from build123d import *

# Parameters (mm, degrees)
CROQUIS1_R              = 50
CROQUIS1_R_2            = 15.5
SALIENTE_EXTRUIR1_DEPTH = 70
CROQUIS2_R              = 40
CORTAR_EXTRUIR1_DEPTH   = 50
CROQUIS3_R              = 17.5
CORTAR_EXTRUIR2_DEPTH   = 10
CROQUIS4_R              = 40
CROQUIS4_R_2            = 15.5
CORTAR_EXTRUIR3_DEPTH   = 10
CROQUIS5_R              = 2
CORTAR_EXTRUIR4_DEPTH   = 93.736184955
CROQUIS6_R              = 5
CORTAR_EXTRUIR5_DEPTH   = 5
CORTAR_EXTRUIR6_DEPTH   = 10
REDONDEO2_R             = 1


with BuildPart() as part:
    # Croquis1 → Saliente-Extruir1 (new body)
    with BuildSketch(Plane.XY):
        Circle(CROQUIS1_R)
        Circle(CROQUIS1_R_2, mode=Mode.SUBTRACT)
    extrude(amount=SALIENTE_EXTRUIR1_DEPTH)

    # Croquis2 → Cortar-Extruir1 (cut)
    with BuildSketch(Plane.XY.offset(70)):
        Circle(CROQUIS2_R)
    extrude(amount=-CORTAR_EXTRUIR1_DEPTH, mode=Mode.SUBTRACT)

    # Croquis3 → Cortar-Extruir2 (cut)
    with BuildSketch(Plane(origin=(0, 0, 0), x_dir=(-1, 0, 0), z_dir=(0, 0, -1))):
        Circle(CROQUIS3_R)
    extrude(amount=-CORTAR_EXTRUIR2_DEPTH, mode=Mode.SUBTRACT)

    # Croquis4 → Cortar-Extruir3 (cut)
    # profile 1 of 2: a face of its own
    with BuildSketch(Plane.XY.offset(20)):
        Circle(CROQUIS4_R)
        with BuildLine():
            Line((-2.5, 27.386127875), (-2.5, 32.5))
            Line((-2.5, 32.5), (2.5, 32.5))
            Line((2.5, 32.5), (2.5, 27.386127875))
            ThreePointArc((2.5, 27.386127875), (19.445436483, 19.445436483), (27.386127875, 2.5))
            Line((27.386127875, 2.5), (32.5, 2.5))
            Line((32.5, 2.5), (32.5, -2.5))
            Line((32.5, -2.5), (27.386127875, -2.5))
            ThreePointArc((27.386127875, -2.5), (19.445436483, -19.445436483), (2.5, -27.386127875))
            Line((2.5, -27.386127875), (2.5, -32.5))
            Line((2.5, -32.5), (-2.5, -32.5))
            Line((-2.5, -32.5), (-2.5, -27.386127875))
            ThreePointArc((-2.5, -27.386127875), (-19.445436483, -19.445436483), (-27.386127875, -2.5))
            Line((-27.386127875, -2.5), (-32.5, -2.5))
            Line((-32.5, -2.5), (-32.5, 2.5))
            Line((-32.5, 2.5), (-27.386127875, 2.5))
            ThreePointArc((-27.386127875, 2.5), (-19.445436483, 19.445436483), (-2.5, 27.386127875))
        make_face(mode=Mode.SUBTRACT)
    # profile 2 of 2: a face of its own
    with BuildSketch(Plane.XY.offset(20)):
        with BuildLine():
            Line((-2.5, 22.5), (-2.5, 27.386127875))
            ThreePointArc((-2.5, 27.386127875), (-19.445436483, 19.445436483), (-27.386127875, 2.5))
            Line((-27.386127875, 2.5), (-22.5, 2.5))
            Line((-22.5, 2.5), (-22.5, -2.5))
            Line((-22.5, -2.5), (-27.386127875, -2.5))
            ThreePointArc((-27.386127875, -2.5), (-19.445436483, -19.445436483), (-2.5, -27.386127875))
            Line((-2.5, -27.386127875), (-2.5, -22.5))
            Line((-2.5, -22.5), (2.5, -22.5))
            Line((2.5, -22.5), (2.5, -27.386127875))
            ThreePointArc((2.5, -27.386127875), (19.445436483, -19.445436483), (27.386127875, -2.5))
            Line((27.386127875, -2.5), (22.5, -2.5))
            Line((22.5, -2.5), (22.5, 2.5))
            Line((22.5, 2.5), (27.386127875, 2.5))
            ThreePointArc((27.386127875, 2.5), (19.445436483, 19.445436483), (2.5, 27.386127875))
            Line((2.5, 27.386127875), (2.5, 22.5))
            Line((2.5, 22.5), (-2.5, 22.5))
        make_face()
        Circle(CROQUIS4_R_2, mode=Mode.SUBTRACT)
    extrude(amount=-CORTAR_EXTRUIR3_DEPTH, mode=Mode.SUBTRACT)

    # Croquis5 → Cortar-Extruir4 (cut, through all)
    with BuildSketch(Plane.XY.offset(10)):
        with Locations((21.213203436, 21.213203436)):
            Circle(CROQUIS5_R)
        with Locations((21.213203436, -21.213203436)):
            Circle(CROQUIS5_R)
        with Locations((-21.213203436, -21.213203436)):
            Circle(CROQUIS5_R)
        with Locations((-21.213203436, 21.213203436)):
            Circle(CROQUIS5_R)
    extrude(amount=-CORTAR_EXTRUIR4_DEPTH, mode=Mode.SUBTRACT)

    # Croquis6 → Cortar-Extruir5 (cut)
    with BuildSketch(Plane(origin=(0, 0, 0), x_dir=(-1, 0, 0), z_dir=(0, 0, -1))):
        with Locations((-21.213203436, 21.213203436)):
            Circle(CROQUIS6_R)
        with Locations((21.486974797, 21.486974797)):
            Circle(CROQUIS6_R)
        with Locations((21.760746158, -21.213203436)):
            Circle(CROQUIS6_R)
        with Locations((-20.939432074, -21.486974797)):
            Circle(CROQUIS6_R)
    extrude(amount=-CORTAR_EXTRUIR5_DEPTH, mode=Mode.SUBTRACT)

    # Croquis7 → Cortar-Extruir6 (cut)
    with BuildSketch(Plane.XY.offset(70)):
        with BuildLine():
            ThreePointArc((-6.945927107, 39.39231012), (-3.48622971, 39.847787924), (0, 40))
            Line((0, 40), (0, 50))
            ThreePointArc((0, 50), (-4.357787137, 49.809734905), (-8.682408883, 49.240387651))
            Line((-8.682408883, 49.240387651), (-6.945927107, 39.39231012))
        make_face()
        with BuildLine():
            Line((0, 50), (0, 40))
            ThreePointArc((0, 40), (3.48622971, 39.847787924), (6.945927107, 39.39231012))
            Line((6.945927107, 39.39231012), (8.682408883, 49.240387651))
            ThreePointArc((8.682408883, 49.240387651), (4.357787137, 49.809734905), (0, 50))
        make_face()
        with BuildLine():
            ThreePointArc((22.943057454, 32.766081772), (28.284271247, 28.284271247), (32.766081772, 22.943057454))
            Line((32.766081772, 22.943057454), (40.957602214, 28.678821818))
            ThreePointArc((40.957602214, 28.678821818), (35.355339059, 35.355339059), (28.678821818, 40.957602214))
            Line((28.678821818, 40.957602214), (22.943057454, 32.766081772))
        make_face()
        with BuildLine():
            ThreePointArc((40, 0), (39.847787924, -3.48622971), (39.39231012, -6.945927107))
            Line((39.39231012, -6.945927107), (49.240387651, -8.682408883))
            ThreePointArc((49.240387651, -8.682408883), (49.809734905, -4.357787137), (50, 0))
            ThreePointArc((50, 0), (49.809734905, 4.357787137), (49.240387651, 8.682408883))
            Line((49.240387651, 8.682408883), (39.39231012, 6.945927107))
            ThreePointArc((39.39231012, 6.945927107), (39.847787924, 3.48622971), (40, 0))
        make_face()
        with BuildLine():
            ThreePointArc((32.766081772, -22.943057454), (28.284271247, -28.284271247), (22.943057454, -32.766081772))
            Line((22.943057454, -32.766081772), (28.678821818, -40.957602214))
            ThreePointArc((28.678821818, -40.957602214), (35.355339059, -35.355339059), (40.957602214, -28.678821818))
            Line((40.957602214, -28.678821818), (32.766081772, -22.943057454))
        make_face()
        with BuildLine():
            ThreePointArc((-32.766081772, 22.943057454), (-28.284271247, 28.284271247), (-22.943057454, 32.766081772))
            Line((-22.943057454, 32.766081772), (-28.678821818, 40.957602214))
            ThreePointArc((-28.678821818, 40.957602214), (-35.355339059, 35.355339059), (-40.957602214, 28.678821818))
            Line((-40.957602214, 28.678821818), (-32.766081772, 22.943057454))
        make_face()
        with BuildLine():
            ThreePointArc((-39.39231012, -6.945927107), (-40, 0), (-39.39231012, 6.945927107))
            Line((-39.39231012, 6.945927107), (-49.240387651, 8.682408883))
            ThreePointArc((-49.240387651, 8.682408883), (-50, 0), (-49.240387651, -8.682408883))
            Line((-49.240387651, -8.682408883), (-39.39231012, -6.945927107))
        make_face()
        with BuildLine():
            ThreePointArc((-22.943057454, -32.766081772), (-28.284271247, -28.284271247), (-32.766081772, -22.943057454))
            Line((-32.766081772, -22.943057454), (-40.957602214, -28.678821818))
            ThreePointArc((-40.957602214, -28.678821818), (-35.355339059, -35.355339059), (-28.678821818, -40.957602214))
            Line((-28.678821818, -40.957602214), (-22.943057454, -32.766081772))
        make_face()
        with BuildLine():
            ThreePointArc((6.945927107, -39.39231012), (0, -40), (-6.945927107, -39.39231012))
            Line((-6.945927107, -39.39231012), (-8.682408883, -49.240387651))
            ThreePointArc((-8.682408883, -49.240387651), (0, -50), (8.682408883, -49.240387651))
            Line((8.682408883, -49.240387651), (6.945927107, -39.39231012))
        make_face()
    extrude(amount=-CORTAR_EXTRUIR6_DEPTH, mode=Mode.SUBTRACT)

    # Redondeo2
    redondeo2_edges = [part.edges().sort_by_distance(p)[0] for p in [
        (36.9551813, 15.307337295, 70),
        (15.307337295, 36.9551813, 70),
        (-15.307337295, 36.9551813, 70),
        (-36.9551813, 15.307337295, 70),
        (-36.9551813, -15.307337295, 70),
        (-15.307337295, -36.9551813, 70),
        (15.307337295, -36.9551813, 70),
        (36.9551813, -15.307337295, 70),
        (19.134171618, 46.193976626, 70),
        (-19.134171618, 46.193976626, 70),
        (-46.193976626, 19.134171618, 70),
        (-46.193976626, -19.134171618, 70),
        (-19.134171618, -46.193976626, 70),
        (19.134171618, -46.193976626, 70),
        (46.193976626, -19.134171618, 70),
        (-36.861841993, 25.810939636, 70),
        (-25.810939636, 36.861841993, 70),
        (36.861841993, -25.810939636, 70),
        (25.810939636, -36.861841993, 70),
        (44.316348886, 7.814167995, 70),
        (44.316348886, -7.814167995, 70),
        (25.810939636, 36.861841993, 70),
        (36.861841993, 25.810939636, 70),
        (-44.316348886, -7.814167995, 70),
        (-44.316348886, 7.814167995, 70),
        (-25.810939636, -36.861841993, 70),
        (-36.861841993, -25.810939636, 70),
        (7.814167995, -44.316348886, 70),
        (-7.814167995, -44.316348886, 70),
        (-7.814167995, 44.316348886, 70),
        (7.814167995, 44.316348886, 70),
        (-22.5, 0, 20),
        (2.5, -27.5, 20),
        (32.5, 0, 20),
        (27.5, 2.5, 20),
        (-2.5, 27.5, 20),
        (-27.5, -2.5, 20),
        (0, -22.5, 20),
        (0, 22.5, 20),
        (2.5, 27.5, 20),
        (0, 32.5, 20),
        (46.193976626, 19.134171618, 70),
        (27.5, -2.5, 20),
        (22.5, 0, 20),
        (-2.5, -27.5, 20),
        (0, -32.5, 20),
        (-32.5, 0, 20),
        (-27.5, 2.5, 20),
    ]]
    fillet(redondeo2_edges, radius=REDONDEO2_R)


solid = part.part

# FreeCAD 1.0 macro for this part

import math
import FreeCAD as App
import Part
import Sketcher

V = App.Vector
Q = App.Units.Quantity


def edges_at(feature, points):
    """Names of the edges that pass closest to the given points."""
    edges = feature.Shape.Edges
    near = lambda p: min(range(len(edges)), key=lambda i: edges[i].distToShape(Part.Vertex(*p))[0])
    return sorted({f"Edge{near(p) + 1}" for p in points})


def add_polygon(sketch, points):
    """Adds a closed chain of lines whose ends are joined by coincident constraints."""
    first, n = sketch.GeometryCount, len(points)
    for a, b in zip(points, points[1:] + points[:1]):
        sketch.addGeometry(Part.LineSegment(App.Vector(*a, 0), App.Vector(*b, 0)), False)
    for i in range(n):
        sketch.addConstraint(Sketcher.Constraint("Coincident", first + i, 2, first + (i + 1) % n, 1))

doc = App.newDocument("Part")
body = doc.addObject("PartDesign::Body", "Body")

# Sketch on XY plane
sketch1 = doc.addObject("Sketcher::SketchObject", "Sketch")
body.addObject(sketch1)
sketch1.AttachmentSupport = (doc.XY_Plane, [""])
sketch1.MapMode = "FlatFace"
sketch1.addGeometry(Part.Circle(V(0, 0, 0), V(0, 0, 1), 50), False)
sketch1.addGeometry(Part.Circle(V(0, 0, 0), V(0, 0, 1), 15.5), False)
sketch1.addConstraint(Sketcher.Constraint("Coincident", 0, 3, -1, 1))
sketch1.addConstraint(Sketcher.Constraint("Coincident", 1, 3, -1, 1))
sketch1.addConstraint(Sketcher.Constraint("Diameter", 0, Q("100 mm")))
sketch1.addConstraint(Sketcher.Constraint("Diameter", 1, Q("31 mm")))
pad1 = doc.addObject("PartDesign::Pad", "Pad")
body.addObject(pad1)
pad1.Profile = sketch1
pad1.Length = 70

# Sketch on XY plane
sketch2 = doc.addObject("Sketcher::SketchObject", "Sketch001")
body.addObject(sketch2)
sketch2.AttachmentSupport = (doc.XY_Plane, [""])
sketch2.MapMode = "FlatFace"
sketch2.AttachmentOffset = App.Placement(V(0, 0, 70), App.Rotation())
sketch2.addGeometry(Part.Circle(V(0, 0, 0), V(0, 0, 1), 40), False)
sketch2.addConstraint(Sketcher.Constraint("Coincident", 0, 3, -1, 1))
sketch2.addConstraint(Sketcher.Constraint("Diameter", 0, Q("80 mm")))
pocket1 = doc.addObject("PartDesign::Pocket", "Pocket")
body.addObject(pocket1)
pocket1.Profile = sketch2
pocket1.Length = 50

# Sketch on XY plane
sketch3 = doc.addObject("Sketcher::SketchObject", "Sketch002")
body.addObject(sketch3)
sketch3.AttachmentSupport = (doc.XY_Plane, [""])
sketch3.MapMode = "FlatFace"
sketch3.addGeometry(Part.Circle(V(0, 0, 0), V(0, 0, 1), 17.5), False)
sketch3.addConstraint(Sketcher.Constraint("Coincident", 0, 3, -1, 1))
sketch3.addConstraint(Sketcher.Constraint("Diameter", 0, Q("35 mm")))
pocket2 = doc.addObject("PartDesign::Pocket", "Pocket001")
body.addObject(pocket2)
pocket2.Profile = sketch3
pocket2.Length = 10
pocket2.Reversed = True

# Sketch on XY plane
sketch4 = doc.addObject("Sketcher::SketchObject", "Sketch003")
body.addObject(sketch4)
sketch4.AttachmentSupport = (doc.XY_Plane, [""])
sketch4.MapMode = "FlatFace"
sketch4.AttachmentOffset = App.Placement(V(0, 0, 20), App.Rotation())
sketch4.addGeometry(Part.Circle(V(0, 0, 0), V(0, 0, 1), 40), False)  # 0
add_polygon(sketch4, [(-32.5, 2.5), (-22.5, 2.5), (-22.5, -2.5), (-32.5, -2.5)])  # lines 1-4
add_polygon(sketch4, [(-2.5, -32.5), (-2.5, -22.5), (2.5, -22.5), (2.5, -32.5)])  # lines 5-8
add_polygon(sketch4, [(32.5, -2.5), (22.5, -2.5), (22.5, 2.5), (32.5, 2.5)])  # lines 9-12
add_polygon(sketch4, [(2.5, 32.5), (2.5, 22.5), (-2.5, 22.5), (-2.5, 32.5)])  # lines 13-16
sketch4.addGeometry(Part.Circle(V(0, 0, 0), V(0, 0, 1), 15.5), False)  # 17
sketch4.addConstraint(Sketcher.Constraint("Horizontal", 1))
sketch4.addConstraint(Sketcher.Constraint("Vertical", 2))
sketch4.addConstraint(Sketcher.Constraint("Horizontal", 3))
sketch4.addConstraint(Sketcher.Constraint("Vertical", 4))
sketch4.addConstraint(Sketcher.Constraint("Vertical", 5))
sketch4.addConstraint(Sketcher.Constraint("Horizontal", 6))
sketch4.addConstraint(Sketcher.Constraint("Vertical", 7))
sketch4.addConstraint(Sketcher.Constraint("Horizontal", 8))
sketch4.addConstraint(Sketcher.Constraint("Horizontal", 9))
sketch4.addConstraint(Sketcher.Constraint("Vertical", 10))
sketch4.addConstraint(Sketcher.Constraint("Horizontal", 11))
sketch4.addConstraint(Sketcher.Constraint("Vertical", 12))
sketch4.addConstraint(Sketcher.Constraint("Vertical", 13))
sketch4.addConstraint(Sketcher.Constraint("Horizontal", 14))
sketch4.addConstraint(Sketcher.Constraint("Vertical", 15))
sketch4.addConstraint(Sketcher.Constraint("Horizontal", 16))
sketch4.addConstraint(Sketcher.Constraint("Coincident", 0, 3, -1, 1))
sketch4.addConstraint(Sketcher.Constraint("Coincident", 17, 3, -1, 1))
sketch4.addConstraint(Sketcher.Constraint("Symmetric", 1, 2, 9, 2, -1, 1))
sketch4.addConstraint(Sketcher.Constraint("Symmetric", 3, 2, 11, 2, -1, 1))
sketch4.addConstraint(Sketcher.Constraint("Symmetric", 5, 2, 13, 2, -1, 1))
sketch4.addConstraint(Sketcher.Constraint("Symmetric", 7, 2, 15, 2, -1, 1))
sketch4.addConstraint(Sketcher.Constraint("Horizontal", 3, 2, 9, 2))
sketch4.addConstraint(Sketcher.Constraint("Vertical", 7, 2, 13, 2))
sketch4.addConstraint(Sketcher.Constraint("Equal", 16, 2))
sketch4.addConstraint(Sketcher.Constraint("Equal", 11, 5))
sketch4.addConstraint(Sketcher.Constraint("Diameter", 0, Q("80 mm")))
sketch4.addConstraint(Sketcher.Constraint("Diameter", 17, Q("31 mm")))
sketch4.addConstraint(Sketcher.Constraint("DistanceX", 1, 1, 1, 2, Q("10 mm")))
sketch4.addConstraint(Sketcher.Constraint("DistanceX", 6, 1, 6, 2, Q("5 mm")))
sketch4.addConstraint(Sketcher.Constraint("DistanceX", 2, 2, 5, 2, Q("20 mm")))
sketch4.addConstraint(Sketcher.Constraint("DistanceY", 5, 2, 2, 2, Q("20 mm")))
pocket3 = doc.addObject("PartDesign::Pocket", "Pocket002")
body.addObject(pocket3)
pocket3.Profile = sketch4
pocket3.Length = 10

# Sketch on XY plane
sketch5 = doc.addObject("Sketcher::SketchObject", "Sketch004")
body.addObject(sketch5)
sketch5.AttachmentSupport = (doc.XY_Plane, [""])
sketch5.MapMode = "FlatFace"
sketch5.AttachmentOffset = App.Placement(V(0, 0, 10), App.Rotation())
sketch5.addGeometry(Part.Circle(V(21.213203, 21.213203, 0), V(0, 0, 1), 2), False)
sketch5.addGeometry(Part.Circle(V(21.213203, -21.213203, 0), V(0, 0, 1), 2), False)
sketch5.addGeometry(Part.Circle(V(-21.213203, -21.213203, 0), V(0, 0, 1), 2), False)
sketch5.addGeometry(Part.Circle(V(-21.213203, 21.213203, 0), V(0, 0, 1), 2), False)
sketch5.addConstraint(Sketcher.Constraint("Equal", 0, 1))
sketch5.addConstraint(Sketcher.Constraint("Equal", 1, 2))
sketch5.addConstraint(Sketcher.Constraint("Equal", 2, 3))
sketch5.addConstraint(Sketcher.Constraint("Symmetric", 0, 3, 2, 3, -1, 1))
sketch5.addConstraint(Sketcher.Constraint("Symmetric", 1, 3, 3, 3, -1, 1))
sketch5.addConstraint(Sketcher.Constraint("Symmetric", 1, 3, 2, 3, -2))
sketch5.addConstraint(Sketcher.Constraint("Diameter", 0, Q("4 mm")))
sketch5.addConstraint(Sketcher.Constraint("DistanceX", -1, 1, 0, 3, Q("21.213203 mm")))
sketch5.addConstraint(Sketcher.Constraint("DistanceY", -1, 1, 0, 3, Q("21.213203 mm")))
pocket4 = doc.addObject("PartDesign::Pocket", "Pocket003")
body.addObject(pocket4)
pocket4.Profile = sketch5
pocket4.Type = "ThroughAll"

# Sketch on XY plane
sketch6 = doc.addObject("Sketcher::SketchObject", "Sketch005")
body.addObject(sketch6)
sketch6.AttachmentSupport = (doc.XY_Plane, [""])
sketch6.MapMode = "FlatFace"
sketch6.addGeometry(Part.Circle(V(21.213203, 21.213203, 0), V(0, 0, 1), 5), False)
sketch6.addGeometry(Part.Circle(V(-21.486975, 21.486975, 0), V(0, 0, 1), 5), False)
sketch6.addGeometry(Part.Circle(V(-21.760746, -21.213203, 0), V(0, 0, 1), 5), False)
sketch6.addGeometry(Part.Circle(V(20.939432, -21.486975, 0), V(0, 0, 1), 5), False)
sketch6.addConstraint(Sketcher.Constraint("Equal", 0, 1))
sketch6.addConstraint(Sketcher.Constraint("Equal", 1, 2))
sketch6.addConstraint(Sketcher.Constraint("Equal", 2, 3))
sketch6.addConstraint(Sketcher.Constraint("Diameter", 0, Q("10 mm")))
sketch6.addConstraint(Sketcher.Constraint("DistanceX", 1, 3, 0, 3, Q("42.700178 mm")))
sketch6.addConstraint(Sketcher.Constraint("DistanceY", 0, 3, 1, 3, Q("0.273771 mm")))
sketch6.addConstraint(Sketcher.Constraint("DistanceX", 2, 3, 1, 3, Q("0.273771 mm")))
sketch6.addConstraint(Sketcher.Constraint("DistanceY", 2, 3, 1, 3, Q("42.700178 mm")))
sketch6.addConstraint(Sketcher.Constraint("DistanceX", 2, 3, 3, 3, Q("42.700178 mm")))
sketch6.addConstraint(Sketcher.Constraint("DistanceY", 3, 3, 2, 3, Q("0.273771 mm")))
sketch6.addConstraint(Sketcher.Constraint("DistanceX", -1, 1, 0, 3, Q("21.213203 mm")))
sketch6.addConstraint(Sketcher.Constraint("DistanceY", -1, 1, 0, 3, Q("21.213203 mm")))
pocket5 = doc.addObject("PartDesign::Pocket", "Pocket004")
body.addObject(pocket5)
pocket5.Profile = sketch6
pocket5.Length = 5
pocket5.Reversed = True

# Sketch on XY plane
sketch7 = doc.addObject("Sketcher::SketchObject", "Sketch006")
body.addObject(sketch7)
sketch7.AttachmentSupport = (doc.XY_Plane, [""])
sketch7.MapMode = "FlatFace"
sketch7.AttachmentOffset = App.Placement(V(0, 0, 70), App.Rotation())
sketch7.addGeometry(Part.ArcOfCircle(Part.Circle(V(0, 0, 0), V(0, 0, 1), 40), math.radians(90), math.radians(100)), False)
sketch7.addGeometry(Part.ArcOfCircle(Part.Circle(V(0, 0, 0), V(0, 0, 1), 40), math.radians(80), math.radians(90)), False)
sketch7.addGeometry(Part.LineSegment(V(6.945927, 39.39231, 0), V(8.682409, 49.240388, 0)), False)
sketch7.addGeometry(Part.ArcOfCircle(Part.Circle(V(0, 0, 0), V(0, 0, 1), 50), math.radians(80), math.radians(90)), False)
sketch7.addGeometry(Part.ArcOfCircle(Part.Circle(V(0, 0, 0), V(0, 0, 1), 50), math.radians(90), math.radians(100)), False)
sketch7.addGeometry(Part.LineSegment(V(-8.682409, 49.240388, 0), V(-6.945927, 39.39231, 0)), False)
sketch7.addGeometry(Part.ArcOfCircle(Part.Circle(V(0, 0, 0), V(0, 0, 1), 40), math.radians(35), math.radians(55)), False)
sketch7.addGeometry(Part.LineSegment(V(32.766082, 22.943057, 0), V(40.957602, 28.678822, 0)), False)
sketch7.addGeometry(Part.ArcOfCircle(Part.Circle(V(0, 0, 0), V(0, 0, 1), 50), math.radians(35), math.radians(55)), False)
sketch7.addGeometry(Part.LineSegment(V(28.678822, 40.957602, 0), V(22.943057, 32.766082, 0)), False)
sketch7.addGeometry(Part.ArcOfCircle(Part.Circle(V(0, 0, 0), V(0, 0, 1), 40), math.radians(-10), math.radians(0)), False)
sketch7.addGeometry(Part.LineSegment(V(39.39231, -6.945927, 0), V(49.240388, -8.682409, 0)), False)
sketch7.addGeometry(Part.ArcOfCircle(Part.Circle(V(0, 0, 0), V(0, 0, 1), 50), math.radians(-10), math.radians(0)), False)
sketch7.addGeometry(Part.ArcOfCircle(Part.Circle(V(0, 0, 0), V(0, 0, 1), 50), math.radians(0), math.radians(10)), False)
sketch7.addGeometry(Part.LineSegment(V(49.240388, 8.682409, 0), V(39.39231, 6.945927, 0)), False)
sketch7.addGeometry(Part.ArcOfCircle(Part.Circle(V(0, 0, 0), V(0, 0, 1), 40), math.radians(0), math.radians(10)), False)
sketch7.addGeometry(Part.ArcOfCircle(Part.Circle(V(0, 0, 0), V(0, 0, 1), 40), math.radians(-55), math.radians(-35)), False)
sketch7.addGeometry(Part.LineSegment(V(22.943057, -32.766082, 0), V(28.678822, -40.957602, 0)), False)
sketch7.addGeometry(Part.ArcOfCircle(Part.Circle(V(0, 0, 0), V(0, 0, 1), 50), math.radians(-55), math.radians(-35)), False)
sketch7.addGeometry(Part.LineSegment(V(40.957602, -28.678822, 0), V(32.766082, -22.943057, 0)), False)
sketch7.addGeometry(Part.ArcOfCircle(Part.Circle(V(0, 0, 0), V(0, 0, 1), 40), math.radians(125), math.radians(145)), False)
sketch7.addGeometry(Part.LineSegment(V(-22.943057, 32.766082, 0), V(-28.678822, 40.957602, 0)), False)
sketch7.addGeometry(Part.ArcOfCircle(Part.Circle(V(0, 0, 0), V(0, 0, 1), 50), math.radians(125), math.radians(145)), False)
sketch7.addGeometry(Part.LineSegment(V(-40.957602, 28.678822, 0), V(-32.766082, 22.943057, 0)), False)
sketch7.addGeometry(Part.ArcOfCircle(Part.Circle(V(0, 0, 0), V(0, 0, 1), 40), math.radians(170), math.radians(190)), False)
sketch7.addGeometry(Part.LineSegment(V(-39.39231, 6.945927, 0), V(-49.240388, 8.682409, 0)), False)
sketch7.addGeometry(Part.ArcOfCircle(Part.Circle(V(0, 0, 0), V(0, 0, 1), 50), math.radians(170), math.radians(190)), False)
sketch7.addGeometry(Part.LineSegment(V(-49.240388, -8.682409, 0), V(-39.39231, -6.945927, 0)), False)
sketch7.addGeometry(Part.ArcOfCircle(Part.Circle(V(0, 0, 0), V(0, 0, 1), 40), math.radians(-145), math.radians(-125)), False)
sketch7.addGeometry(Part.LineSegment(V(-32.766082, -22.943057, 0), V(-40.957602, -28.678822, 0)), False)
sketch7.addGeometry(Part.ArcOfCircle(Part.Circle(V(0, 0, 0), V(0, 0, 1), 50), math.radians(-145), math.radians(-125)), False)
sketch7.addGeometry(Part.LineSegment(V(-28.678822, -40.957602, 0), V(-22.943057, -32.766082, 0)), False)
sketch7.addGeometry(Part.ArcOfCircle(Part.Circle(V(0, 0, 0), V(0, 0, 1), 40), math.radians(-100), math.radians(-80)), False)
sketch7.addGeometry(Part.LineSegment(V(-6.945927, -39.39231, 0), V(-8.682409, -49.240388, 0)), False)
sketch7.addGeometry(Part.ArcOfCircle(Part.Circle(V(0, 0, 0), V(0, 0, 1), 50), math.radians(-100), math.radians(-80)), False)
sketch7.addGeometry(Part.LineSegment(V(8.682409, -49.240388, 0), V(6.945927, -39.39231, 0)), False)
sketch7.addConstraint(Sketcher.Constraint("Tangent", 0, 1, 1, 2))
sketch7.addConstraint(Sketcher.Constraint("Coincident", 1, 1, 2, 1))
sketch7.addConstraint(Sketcher.Constraint("Coincident", 2, 2, 3, 1))
sketch7.addConstraint(Sketcher.Constraint("Tangent", 3, 2, 4, 1))
sketch7.addConstraint(Sketcher.Constraint("Coincident", 4, 2, 5, 1))
sketch7.addConstraint(Sketcher.Constraint("Coincident", 5, 2, 0, 2))
sketch7.addConstraint(Sketcher.Constraint("Coincident", 6, 1, 7, 1))
sketch7.addConstraint(Sketcher.Constraint("Coincident", 7, 2, 8, 1))
sketch7.addConstraint(Sketcher.Constraint("Coincident", 8, 2, 9, 1))
sketch7.addConstraint(Sketcher.Constraint("Coincident", 9, 2, 6, 2))
sketch7.addConstraint(Sketcher.Constraint("Coincident", 10, 1, 11, 1))
sketch7.addConstraint(Sketcher.Constraint("Coincident", 11, 2, 12, 1))
sketch7.addConstraint(Sketcher.Constraint("Tangent", 12, 2, 13, 1))
sketch7.addConstraint(Sketcher.Constraint("Coincident", 13, 2, 14, 1))
sketch7.addConstraint(Sketcher.Constraint("Coincident", 14, 2, 15, 2))
sketch7.addConstraint(Sketcher.Constraint("Tangent", 15, 1, 10, 2))
sketch7.addConstraint(Sketcher.Constraint("Coincident", 16, 1, 17, 1))
sketch7.addConstraint(Sketcher.Constraint("Coincident", 17, 2, 18, 1))
sketch7.addConstraint(Sketcher.Constraint("Coincident", 18, 2, 19, 1))
sketch7.addConstraint(Sketcher.Constraint("Coincident", 19, 2, 16, 2))
sketch7.addConstraint(Sketcher.Constraint("Coincident", 20, 1, 21, 1))
sketch7.addConstraint(Sketcher.Constraint("Coincident", 21, 2, 22, 1))
sketch7.addConstraint(Sketcher.Constraint("Coincident", 22, 2, 23, 1))
sketch7.addConstraint(Sketcher.Constraint("Coincident", 23, 2, 20, 2))
sketch7.addConstraint(Sketcher.Constraint("Coincident", 24, 1, 25, 1))
sketch7.addConstraint(Sketcher.Constraint("Coincident", 25, 2, 26, 1))
sketch7.addConstraint(Sketcher.Constraint("Coincident", 26, 2, 27, 1))
sketch7.addConstraint(Sketcher.Constraint("Coincident", 27, 2, 24, 2))
sketch7.addConstraint(Sketcher.Constraint("Coincident", 28, 1, 29, 1))
sketch7.addConstraint(Sketcher.Constraint("Coincident", 29, 2, 30, 1))
sketch7.addConstraint(Sketcher.Constraint("Coincident", 30, 2, 31, 1))
sketch7.addConstraint(Sketcher.Constraint("Coincident", 31, 2, 28, 2))
sketch7.addConstraint(Sketcher.Constraint("Coincident", 32, 1, 33, 1))
sketch7.addConstraint(Sketcher.Constraint("Coincident", 33, 2, 34, 1))
sketch7.addConstraint(Sketcher.Constraint("Coincident", 34, 2, 35, 1))
sketch7.addConstraint(Sketcher.Constraint("Coincident", 35, 2, 32, 2))
sketch7.addConstraint(Sketcher.Constraint("Coincident", 0, 3, -1, 1))
sketch7.addConstraint(Sketcher.Constraint("Coincident", 3, 3, -1, 1))
sketch7.addConstraint(Sketcher.Constraint("Coincident", 6, 3, -1, 1))
sketch7.addConstraint(Sketcher.Constraint("Coincident", 8, 3, -1, 1))
sketch7.addConstraint(Sketcher.Constraint("Coincident", 10, 3, -1, 1))
sketch7.addConstraint(Sketcher.Constraint("Coincident", 12, 3, -1, 1))
sketch7.addConstraint(Sketcher.Constraint("Coincident", 16, 3, -1, 1))
sketch7.addConstraint(Sketcher.Constraint("Coincident", 18, 3, -1, 1))
sketch7.addConstraint(Sketcher.Constraint("Coincident", 20, 3, -1, 1))
sketch7.addConstraint(Sketcher.Constraint("Coincident", 22, 3, -1, 1))
sketch7.addConstraint(Sketcher.Constraint("Coincident", 24, 3, -1, 1))
sketch7.addConstraint(Sketcher.Constraint("Coincident", 26, 3, -1, 1))
sketch7.addConstraint(Sketcher.Constraint("Coincident", 28, 3, -1, 1))
sketch7.addConstraint(Sketcher.Constraint("Coincident", 30, 3, -1, 1))
sketch7.addConstraint(Sketcher.Constraint("Coincident", 32, 3, -1, 1))
sketch7.addConstraint(Sketcher.Constraint("Coincident", 34, 3, -1, 1))
sketch7.addConstraint(Sketcher.Constraint("Equal", 0, 1))
sketch7.addConstraint(Sketcher.Constraint("Equal", 3, 4))
sketch7.addConstraint(Sketcher.Constraint("Equal", 1, 6))
sketch7.addConstraint(Sketcher.Constraint("Equal", 4, 8))
sketch7.addConstraint(Sketcher.Constraint("Equal", 6, 10))
sketch7.addConstraint(Sketcher.Constraint("Equal", 8, 12))
sketch7.addConstraint(Sketcher.Constraint("Equal", 12, 13))
sketch7.addConstraint(Sketcher.Constraint("Equal", 10, 15))
sketch7.addConstraint(Sketcher.Constraint("Equal", 15, 16))
sketch7.addConstraint(Sketcher.Constraint("Equal", 13, 18))
sketch7.addConstraint(Sketcher.Constraint("Equal", 16, 20))
sketch7.addConstraint(Sketcher.Constraint("Equal", 18, 22))
sketch7.addConstraint(Sketcher.Constraint("Equal", 20, 24))
sketch7.addConstraint(Sketcher.Constraint("Equal", 22, 26))
sketch7.addConstraint(Sketcher.Constraint("Equal", 24, 28))
sketch7.addConstraint(Sketcher.Constraint("Equal", 26, 30))
sketch7.addConstraint(Sketcher.Constraint("Equal", 28, 32))
sketch7.addConstraint(Sketcher.Constraint("Equal", 30, 34))
sketch7.addConstraint(Sketcher.Constraint("PointOnObject", 0, 1, -2))
sketch7.addConstraint(Sketcher.Constraint("PointOnObject", 3, 2, -2))
sketch7.addConstraint(Sketcher.Constraint("PointOnObject", 12, 2, -1))
sketch7.addConstraint(Sketcher.Constraint("PointOnObject", 15, 1, -1))
sketch7.addConstraint(Sketcher.Constraint("Perpendicular", 2, 11))
sketch7.addConstraint(Sketcher.Constraint("Perpendicular", 5, 14))
sketch7.addConstraint(Sketcher.Constraint("Perpendicular", 7, 17))
sketch7.addConstraint(Sketcher.Constraint("Perpendicular", 9, 19))
sketch7.addConstraint(Sketcher.Constraint("Parallel", 17, 21))
sketch7.addConstraint(Sketcher.Constraint("Parallel", 19, 23))
sketch7.addConstraint(Sketcher.Constraint("Parallel", 11, 25))
sketch7.addConstraint(Sketcher.Constraint("Parallel", 14, 27))
sketch7.addConstraint(Sketcher.Constraint("Perpendicular", 21, 29))
sketch7.addConstraint(Sketcher.Constraint("Perpendicular", 23, 31))
sketch7.addConstraint(Sketcher.Constraint("Perpendicular", 25, 33))
sketch7.addConstraint(Sketcher.Constraint("Perpendicular", 27, 35))
sketch7.addConstraint(Sketcher.Constraint("Horizontal", 2, 2, 4, 2))
sketch7.addConstraint(Sketcher.Constraint("Horizontal", 1, 1, 5, 2))
sketch7.addConstraint(Sketcher.Constraint("Horizontal", 9, 2, 20, 1))
sketch7.addConstraint(Sketcher.Constraint("Horizontal", 8, 2, 21, 2))
sketch7.addConstraint(Sketcher.Constraint("Horizontal", 7, 2, 22, 2))
sketch7.addConstraint(Sketcher.Constraint("Horizontal", 14, 2, 24, 1))
sketch7.addConstraint(Sketcher.Constraint("Horizontal", 11, 2, 26, 2))
sketch7.addConstraint(Sketcher.Constraint("Horizontal", 19, 2, 28, 1))
sketch7.addConstraint(Sketcher.Constraint("Horizontal", 17, 2, 30, 2))
sketch7.addConstraint(Sketcher.Constraint("Horizontal", 33, 2, 34, 2))
sketch7.addConstraint(Sketcher.Constraint("Vertical", 11, 2, 13, 2))
sketch7.addConstraint(Sketcher.Constraint("Vertical", 9, 2, 16, 1))
sketch7.addConstraint(Sketcher.Constraint("Vertical", 7, 2, 18, 2))
sketch7.addConstraint(Sketcher.Constraint("Vertical", 5, 2, 32, 1))
sketch7.addConstraint(Sketcher.Constraint("Radius", 0, Q("40 mm")))
sketch7.addConstraint(Sketcher.Constraint("Radius", 3, Q("50 mm")))
sketch7.addConstraint(Sketcher.Constraint("Angle", 2, Q("80 deg")))
sketch7.addConstraint(Sketcher.Constraint("Angle", 7, Q("35 deg")))
sketch7.addConstraint(Sketcher.Constraint("DistanceY", -1, 1, 1, 1, Q("39.39231 mm")))
sketch7.addConstraint(Sketcher.Constraint("DistanceX", -1, 1, 6, 1, Q("32.766082 mm")))
sketch7.addConstraint(Sketcher.Constraint("DistanceX", -1, 1, 8, 2, Q("28.678822 mm")))
sketch7.addConstraint(Sketcher.Constraint("DistanceX", -1, 1, 10, 1, Q("39.39231 mm")))
pocket6 = doc.addObject("PartDesign::Pocket", "Pocket005")
body.addObject(pocket6)
pocket6.Profile = sketch7
pocket6.Length = 10
doc.recompute()

fillet = doc.addObject("PartDesign::Fillet", "Fillet")
body.addObject(fillet)
fillet.Base = (pocket6, edges_at(pocket6, [
    (36.955, 15.307, 70),
    (15.307, 36.955, 70),
    (-15.307, 36.955, 70),
    (-36.955, 15.307, 70),
    (-36.955, -15.307, 70),
    (-15.307, -36.955, 70),
    (15.307, -36.955, 70),
    (36.955, -15.307, 70),
    (19.134, 46.194, 70),
    (-19.134, 46.194, 70),
    (-46.194, 19.134, 70),
    (-46.194, -19.134, 70),
    (-19.134, -46.194, 70),
    (19.134, -46.194, 70),
    (46.194, -19.134, 70),
    (-36.862, 25.811, 70),
    (-25.811, 36.862, 70),
    (36.862, -25.811, 70),
    (25.811, -36.862, 70),
    (44.316, 7.814, 70),
    (44.316, -7.814, 70),
    (25.811, 36.862, 70),
    (36.862, 25.811, 70),
    (-44.316, -7.814, 70),
    (-44.316, 7.814, 70),
    (-25.811, -36.862, 70),
    (-36.862, -25.811, 70),
    (7.814, -44.316, 70),
    (-7.814, -44.316, 70),
    (-7.814, 44.316, 70),
    (7.814, 44.316, 70),
    (-22.5, 0, 20),
    (2.5, -27.5, 20),
    (32.5, 0, 20),
    (27.5, 2.5, 20),
    (-2.5, 27.5, 20),
    (-27.5, -2.5, 20),
    (0, -22.5, 20),
    (0, 22.5, 20),
    (2.5, 27.5, 20),
    (0, 32.5, 20),
    (46.194, 19.134, 70),
    (27.5, -2.5, 20),
    (22.5, 0, 20),
    (-2.5, -27.5, 20),
    (0, -32.5, 20),
    (-32.5, 0, 20),
    (-27.5, 2.5, 20),
]))
fillet.Radius = 1

doc.recompute()
